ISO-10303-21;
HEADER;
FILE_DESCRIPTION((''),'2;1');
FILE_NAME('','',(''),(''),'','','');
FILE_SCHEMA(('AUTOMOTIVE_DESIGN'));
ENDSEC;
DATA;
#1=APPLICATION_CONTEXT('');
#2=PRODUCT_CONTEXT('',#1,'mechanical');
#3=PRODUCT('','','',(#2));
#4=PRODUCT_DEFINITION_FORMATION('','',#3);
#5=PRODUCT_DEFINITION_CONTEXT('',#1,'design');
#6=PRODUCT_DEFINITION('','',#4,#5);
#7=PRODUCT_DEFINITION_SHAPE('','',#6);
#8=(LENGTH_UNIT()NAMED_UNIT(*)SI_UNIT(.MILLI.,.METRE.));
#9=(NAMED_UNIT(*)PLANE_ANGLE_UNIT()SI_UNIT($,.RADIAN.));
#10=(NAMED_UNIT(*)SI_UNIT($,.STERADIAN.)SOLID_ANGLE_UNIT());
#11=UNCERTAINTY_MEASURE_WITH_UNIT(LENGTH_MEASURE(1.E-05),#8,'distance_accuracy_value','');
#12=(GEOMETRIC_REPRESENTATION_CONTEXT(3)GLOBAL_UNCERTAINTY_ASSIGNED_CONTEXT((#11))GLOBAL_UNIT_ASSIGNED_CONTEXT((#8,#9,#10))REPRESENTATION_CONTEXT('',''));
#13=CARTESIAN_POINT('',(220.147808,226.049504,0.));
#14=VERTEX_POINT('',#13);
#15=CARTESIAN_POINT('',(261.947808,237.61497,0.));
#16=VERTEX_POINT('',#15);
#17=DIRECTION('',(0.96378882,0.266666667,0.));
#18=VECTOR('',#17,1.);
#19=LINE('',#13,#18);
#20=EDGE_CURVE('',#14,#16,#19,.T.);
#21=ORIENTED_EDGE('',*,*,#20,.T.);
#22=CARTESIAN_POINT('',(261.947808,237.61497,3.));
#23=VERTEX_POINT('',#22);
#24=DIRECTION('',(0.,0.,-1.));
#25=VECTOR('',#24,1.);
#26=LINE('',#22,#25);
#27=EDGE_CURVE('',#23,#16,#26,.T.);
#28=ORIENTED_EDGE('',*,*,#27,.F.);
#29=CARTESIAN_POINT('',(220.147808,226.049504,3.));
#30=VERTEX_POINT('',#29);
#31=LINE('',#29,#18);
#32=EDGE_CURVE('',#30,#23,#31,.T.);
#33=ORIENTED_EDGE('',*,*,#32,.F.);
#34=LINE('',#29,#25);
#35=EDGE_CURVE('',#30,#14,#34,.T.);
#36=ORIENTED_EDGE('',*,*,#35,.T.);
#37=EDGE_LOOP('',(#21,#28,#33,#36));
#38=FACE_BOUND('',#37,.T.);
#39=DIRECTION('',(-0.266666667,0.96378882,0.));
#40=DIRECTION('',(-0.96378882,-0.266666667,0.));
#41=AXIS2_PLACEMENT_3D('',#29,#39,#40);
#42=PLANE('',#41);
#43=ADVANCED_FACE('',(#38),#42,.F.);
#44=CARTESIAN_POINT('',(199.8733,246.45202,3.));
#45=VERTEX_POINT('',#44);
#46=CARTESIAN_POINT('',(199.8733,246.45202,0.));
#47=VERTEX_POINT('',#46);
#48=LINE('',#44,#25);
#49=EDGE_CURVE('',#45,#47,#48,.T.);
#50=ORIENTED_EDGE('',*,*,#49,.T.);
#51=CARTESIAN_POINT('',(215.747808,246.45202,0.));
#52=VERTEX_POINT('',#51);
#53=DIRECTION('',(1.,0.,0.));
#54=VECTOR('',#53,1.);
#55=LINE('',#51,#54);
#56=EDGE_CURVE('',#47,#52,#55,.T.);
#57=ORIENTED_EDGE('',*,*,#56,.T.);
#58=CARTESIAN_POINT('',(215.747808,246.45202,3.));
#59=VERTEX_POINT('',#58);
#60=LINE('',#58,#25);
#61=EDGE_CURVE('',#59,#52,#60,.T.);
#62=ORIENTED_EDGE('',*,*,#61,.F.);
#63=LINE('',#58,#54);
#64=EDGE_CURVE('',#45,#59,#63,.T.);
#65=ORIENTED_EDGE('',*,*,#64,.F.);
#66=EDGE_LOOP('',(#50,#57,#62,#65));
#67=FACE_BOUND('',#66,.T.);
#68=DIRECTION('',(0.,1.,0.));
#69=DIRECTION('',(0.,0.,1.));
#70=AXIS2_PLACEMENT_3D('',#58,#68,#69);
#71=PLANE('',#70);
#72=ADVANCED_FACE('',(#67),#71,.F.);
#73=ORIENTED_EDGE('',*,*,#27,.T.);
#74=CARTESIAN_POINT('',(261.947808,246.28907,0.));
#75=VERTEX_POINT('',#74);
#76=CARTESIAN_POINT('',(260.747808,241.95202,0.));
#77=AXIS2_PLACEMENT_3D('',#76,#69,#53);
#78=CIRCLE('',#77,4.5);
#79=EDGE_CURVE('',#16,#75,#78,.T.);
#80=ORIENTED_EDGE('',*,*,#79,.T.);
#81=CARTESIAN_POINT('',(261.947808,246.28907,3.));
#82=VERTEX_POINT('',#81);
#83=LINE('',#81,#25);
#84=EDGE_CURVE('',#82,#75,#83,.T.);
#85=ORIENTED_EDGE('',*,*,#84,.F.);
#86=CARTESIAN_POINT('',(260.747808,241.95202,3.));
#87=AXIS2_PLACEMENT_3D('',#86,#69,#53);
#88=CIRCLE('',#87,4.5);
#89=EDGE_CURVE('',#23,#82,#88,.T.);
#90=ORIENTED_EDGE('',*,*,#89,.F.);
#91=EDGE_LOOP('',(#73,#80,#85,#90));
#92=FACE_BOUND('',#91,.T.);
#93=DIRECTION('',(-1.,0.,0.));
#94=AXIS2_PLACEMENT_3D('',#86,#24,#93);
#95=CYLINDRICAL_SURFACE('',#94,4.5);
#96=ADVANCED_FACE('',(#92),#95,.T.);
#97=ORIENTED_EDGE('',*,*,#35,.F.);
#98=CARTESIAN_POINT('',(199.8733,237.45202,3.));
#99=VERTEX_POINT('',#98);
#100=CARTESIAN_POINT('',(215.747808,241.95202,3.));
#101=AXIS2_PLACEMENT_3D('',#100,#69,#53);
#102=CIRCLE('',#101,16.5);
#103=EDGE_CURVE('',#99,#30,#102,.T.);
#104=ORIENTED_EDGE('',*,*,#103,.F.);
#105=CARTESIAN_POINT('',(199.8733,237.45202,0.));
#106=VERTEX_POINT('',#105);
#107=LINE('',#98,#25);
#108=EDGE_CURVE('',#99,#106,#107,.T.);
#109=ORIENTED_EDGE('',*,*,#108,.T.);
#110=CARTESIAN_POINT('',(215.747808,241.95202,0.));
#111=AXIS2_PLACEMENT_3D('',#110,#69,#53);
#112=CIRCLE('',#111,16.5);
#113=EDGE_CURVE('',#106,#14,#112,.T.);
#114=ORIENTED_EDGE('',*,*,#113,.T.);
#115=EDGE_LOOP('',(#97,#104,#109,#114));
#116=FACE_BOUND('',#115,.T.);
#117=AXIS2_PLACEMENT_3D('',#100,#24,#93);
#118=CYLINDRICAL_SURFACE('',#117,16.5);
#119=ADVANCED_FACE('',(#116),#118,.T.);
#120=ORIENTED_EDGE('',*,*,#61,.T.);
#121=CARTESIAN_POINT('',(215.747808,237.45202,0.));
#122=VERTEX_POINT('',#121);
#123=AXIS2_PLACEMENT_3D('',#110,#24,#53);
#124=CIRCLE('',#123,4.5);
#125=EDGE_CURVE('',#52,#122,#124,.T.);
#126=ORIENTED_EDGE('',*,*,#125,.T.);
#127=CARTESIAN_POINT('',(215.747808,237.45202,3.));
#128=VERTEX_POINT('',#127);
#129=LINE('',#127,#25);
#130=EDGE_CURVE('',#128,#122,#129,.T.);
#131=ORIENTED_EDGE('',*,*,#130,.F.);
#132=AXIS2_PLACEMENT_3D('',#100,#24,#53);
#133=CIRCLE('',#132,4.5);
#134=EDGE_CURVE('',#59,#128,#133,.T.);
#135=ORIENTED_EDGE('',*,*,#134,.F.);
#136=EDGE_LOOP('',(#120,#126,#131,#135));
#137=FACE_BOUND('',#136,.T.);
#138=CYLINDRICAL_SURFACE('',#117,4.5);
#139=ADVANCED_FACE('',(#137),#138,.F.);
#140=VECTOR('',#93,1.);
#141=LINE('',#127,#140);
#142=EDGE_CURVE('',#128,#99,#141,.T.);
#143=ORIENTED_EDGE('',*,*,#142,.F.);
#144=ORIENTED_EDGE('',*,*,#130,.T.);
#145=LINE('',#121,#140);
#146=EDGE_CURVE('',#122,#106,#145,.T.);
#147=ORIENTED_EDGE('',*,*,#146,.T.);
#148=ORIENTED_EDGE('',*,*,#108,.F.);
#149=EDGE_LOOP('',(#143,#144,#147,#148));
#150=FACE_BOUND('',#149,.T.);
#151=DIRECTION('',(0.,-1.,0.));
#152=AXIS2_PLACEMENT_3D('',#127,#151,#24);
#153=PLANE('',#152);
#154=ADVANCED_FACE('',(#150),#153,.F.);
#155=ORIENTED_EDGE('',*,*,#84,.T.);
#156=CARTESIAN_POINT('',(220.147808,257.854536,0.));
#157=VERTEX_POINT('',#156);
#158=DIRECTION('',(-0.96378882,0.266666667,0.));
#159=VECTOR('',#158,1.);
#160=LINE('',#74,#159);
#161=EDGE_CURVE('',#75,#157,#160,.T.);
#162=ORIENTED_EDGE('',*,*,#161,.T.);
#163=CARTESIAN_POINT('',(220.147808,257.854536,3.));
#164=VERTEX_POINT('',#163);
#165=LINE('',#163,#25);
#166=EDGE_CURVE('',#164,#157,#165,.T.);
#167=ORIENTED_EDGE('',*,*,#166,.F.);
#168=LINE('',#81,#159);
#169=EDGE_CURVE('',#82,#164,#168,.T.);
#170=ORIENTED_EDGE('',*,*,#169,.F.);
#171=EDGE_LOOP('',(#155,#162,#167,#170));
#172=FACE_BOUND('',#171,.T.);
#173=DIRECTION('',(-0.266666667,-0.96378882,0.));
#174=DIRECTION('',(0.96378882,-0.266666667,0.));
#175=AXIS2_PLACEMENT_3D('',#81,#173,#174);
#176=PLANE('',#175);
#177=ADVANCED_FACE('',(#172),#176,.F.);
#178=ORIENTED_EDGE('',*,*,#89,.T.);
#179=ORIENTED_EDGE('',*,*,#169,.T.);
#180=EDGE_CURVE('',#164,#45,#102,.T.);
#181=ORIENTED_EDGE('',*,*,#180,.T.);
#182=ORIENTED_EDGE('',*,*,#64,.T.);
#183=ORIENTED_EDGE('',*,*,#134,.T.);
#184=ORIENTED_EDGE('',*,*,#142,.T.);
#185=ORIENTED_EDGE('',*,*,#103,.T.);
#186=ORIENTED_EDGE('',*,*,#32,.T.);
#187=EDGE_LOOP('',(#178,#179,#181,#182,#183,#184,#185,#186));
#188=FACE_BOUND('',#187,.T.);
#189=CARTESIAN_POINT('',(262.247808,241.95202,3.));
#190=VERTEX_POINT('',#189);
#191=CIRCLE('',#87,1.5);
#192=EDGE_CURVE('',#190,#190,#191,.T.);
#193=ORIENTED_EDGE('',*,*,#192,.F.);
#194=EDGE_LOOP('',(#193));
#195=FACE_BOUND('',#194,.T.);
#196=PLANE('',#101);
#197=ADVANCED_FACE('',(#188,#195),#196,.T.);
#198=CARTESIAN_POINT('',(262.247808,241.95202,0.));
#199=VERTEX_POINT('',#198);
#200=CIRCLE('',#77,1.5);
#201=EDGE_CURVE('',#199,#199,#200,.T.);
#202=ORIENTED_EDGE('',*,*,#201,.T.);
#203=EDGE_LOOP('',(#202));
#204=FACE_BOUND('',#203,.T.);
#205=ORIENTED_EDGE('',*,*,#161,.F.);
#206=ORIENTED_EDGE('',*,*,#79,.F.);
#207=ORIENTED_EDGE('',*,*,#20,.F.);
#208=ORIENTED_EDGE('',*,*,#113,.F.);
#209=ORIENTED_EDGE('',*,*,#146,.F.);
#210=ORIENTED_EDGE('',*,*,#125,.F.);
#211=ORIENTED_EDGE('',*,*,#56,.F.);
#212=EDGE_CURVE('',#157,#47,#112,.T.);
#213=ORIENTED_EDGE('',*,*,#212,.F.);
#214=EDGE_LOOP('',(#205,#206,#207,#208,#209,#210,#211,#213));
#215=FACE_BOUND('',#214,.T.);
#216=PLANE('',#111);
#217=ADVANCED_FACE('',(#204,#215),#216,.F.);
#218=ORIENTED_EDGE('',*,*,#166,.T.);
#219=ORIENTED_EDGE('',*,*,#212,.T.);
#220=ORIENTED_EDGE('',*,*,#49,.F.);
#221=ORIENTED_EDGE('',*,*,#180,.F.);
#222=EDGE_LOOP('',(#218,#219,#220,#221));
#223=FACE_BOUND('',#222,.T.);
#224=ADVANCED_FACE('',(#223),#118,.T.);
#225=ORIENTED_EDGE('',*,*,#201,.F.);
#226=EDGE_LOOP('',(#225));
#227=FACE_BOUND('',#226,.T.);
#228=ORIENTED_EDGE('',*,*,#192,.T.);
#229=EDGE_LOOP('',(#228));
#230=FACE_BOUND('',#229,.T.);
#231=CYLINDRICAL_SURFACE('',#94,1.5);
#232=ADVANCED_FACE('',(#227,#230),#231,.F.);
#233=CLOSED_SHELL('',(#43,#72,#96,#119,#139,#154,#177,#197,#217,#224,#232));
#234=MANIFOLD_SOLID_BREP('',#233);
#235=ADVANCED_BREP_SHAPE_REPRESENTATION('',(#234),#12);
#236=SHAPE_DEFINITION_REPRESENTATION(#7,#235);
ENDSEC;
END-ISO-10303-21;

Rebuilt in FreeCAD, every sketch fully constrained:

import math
import FreeCAD as App
import Part
import Sketcher

doc = App.newDocument("Part")
body = doc.addObject("PartDesign::Body", "Body")

sketch1 = body.newObject("Sketcher::SketchObject", "Sketch")
sketch1.AttachmentSupport = (doc.getObject("XY_Plane"), [""])
sketch1.MapMode = "FlatFace"
sketch1.addGeometry([
    Part.LineSegment(App.Vector(220.147808, 226.049504, 0), App.Vector(261.947808, 237.61497, 0)),
    Part.ArcOfCircle(Part.Circle(App.Vector(260.747808, 241.95202, 0), App.Vector(0, 0, 1), 4.5), math.radians(-74.53399), math.radians(74.53399)),
    Part.LineSegment(App.Vector(261.947808, 246.28907, 0), App.Vector(220.147808, 257.854536, 0)),
    Part.ArcOfCircle(Part.Circle(App.Vector(215.747808, 241.95202, 0), App.Vector(0, 0, 1), 16.5), math.radians(74.53399), math.radians(164.17338)),
    Part.LineSegment(App.Vector(199.8733, 246.45202, 0), App.Vector(215.747808, 246.45202, 0)),
    Part.ArcOfCircle(Part.Circle(App.Vector(215.747808, 241.95202, 0), App.Vector(0, 0, 1), 4.5), math.radians(-90), math.radians(90)),
    Part.LineSegment(App.Vector(215.747808, 237.45202, 0), App.Vector(199.8733, 237.45202, 0)),
    Part.ArcOfCircle(Part.Circle(App.Vector(215.747808, 241.95202, 0), App.Vector(0, 0, 1), 16.5), math.radians(-164.17338), math.radians(-74.53399)),
    Part.Circle(App.Vector(260.747808, 241.95202, 0), App.Vector(0, 0, 1), 1.5),
], False)
sketch1.addConstraint([
    Sketcher.Constraint("Tangent", 0, 2, 1, 1),
    Sketcher.Constraint("Tangent", 1, 2, 2, 1),
    Sketcher.Constraint("Tangent", 2, 2, 3, 1),
    Sketcher.Constraint("Coincident", 3, 2, 4, 1),
    Sketcher.Constraint("Tangent", 4, 2, 5, 2),
    Sketcher.Constraint("Tangent", 5, 1, 6, 1),
    Sketcher.Constraint("Coincident", 6, 2, 7, 1),
    Sketcher.Constraint("Tangent", 7, 2, 0, 1),
    Sketcher.Constraint("Horizontal", 4),
    Sketcher.Constraint("Horizontal", 6),
    Sketcher.Constraint("Coincident", 5, 3, 3, 3),
    Sketcher.Constraint("Coincident", 7, 3, 3, 3),
    Sketcher.Constraint("Coincident", 8, 3, 1, 3),
    Sketcher.Constraint("Equal", 1, 5),
    Sketcher.Constraint("Equal", 3, 7),
    Sketcher.Constraint("Horizontal", 1, 3, 3, 3),
    Sketcher.Constraint("Diameter", 8, 3.0),
    Sketcher.Constraint("Radius", 1, 4.5),
    Sketcher.Constraint("Radius", 3, 16.5),
    Sketcher.Constraint("DistanceX", 3, 3, 1, 3, 45.0),
    Sketcher.Constraint("DistanceX", -1, 1, 3, 2, 199.8733),
    Sketcher.Constraint("DistanceY", -1, 1, 1, 3, 241.95202),
])
pad1 = body.newObject("PartDesign::Pad", "Pad")
pad1.Profile = sketch1
pad1.Length = 3

doc.recompute()
